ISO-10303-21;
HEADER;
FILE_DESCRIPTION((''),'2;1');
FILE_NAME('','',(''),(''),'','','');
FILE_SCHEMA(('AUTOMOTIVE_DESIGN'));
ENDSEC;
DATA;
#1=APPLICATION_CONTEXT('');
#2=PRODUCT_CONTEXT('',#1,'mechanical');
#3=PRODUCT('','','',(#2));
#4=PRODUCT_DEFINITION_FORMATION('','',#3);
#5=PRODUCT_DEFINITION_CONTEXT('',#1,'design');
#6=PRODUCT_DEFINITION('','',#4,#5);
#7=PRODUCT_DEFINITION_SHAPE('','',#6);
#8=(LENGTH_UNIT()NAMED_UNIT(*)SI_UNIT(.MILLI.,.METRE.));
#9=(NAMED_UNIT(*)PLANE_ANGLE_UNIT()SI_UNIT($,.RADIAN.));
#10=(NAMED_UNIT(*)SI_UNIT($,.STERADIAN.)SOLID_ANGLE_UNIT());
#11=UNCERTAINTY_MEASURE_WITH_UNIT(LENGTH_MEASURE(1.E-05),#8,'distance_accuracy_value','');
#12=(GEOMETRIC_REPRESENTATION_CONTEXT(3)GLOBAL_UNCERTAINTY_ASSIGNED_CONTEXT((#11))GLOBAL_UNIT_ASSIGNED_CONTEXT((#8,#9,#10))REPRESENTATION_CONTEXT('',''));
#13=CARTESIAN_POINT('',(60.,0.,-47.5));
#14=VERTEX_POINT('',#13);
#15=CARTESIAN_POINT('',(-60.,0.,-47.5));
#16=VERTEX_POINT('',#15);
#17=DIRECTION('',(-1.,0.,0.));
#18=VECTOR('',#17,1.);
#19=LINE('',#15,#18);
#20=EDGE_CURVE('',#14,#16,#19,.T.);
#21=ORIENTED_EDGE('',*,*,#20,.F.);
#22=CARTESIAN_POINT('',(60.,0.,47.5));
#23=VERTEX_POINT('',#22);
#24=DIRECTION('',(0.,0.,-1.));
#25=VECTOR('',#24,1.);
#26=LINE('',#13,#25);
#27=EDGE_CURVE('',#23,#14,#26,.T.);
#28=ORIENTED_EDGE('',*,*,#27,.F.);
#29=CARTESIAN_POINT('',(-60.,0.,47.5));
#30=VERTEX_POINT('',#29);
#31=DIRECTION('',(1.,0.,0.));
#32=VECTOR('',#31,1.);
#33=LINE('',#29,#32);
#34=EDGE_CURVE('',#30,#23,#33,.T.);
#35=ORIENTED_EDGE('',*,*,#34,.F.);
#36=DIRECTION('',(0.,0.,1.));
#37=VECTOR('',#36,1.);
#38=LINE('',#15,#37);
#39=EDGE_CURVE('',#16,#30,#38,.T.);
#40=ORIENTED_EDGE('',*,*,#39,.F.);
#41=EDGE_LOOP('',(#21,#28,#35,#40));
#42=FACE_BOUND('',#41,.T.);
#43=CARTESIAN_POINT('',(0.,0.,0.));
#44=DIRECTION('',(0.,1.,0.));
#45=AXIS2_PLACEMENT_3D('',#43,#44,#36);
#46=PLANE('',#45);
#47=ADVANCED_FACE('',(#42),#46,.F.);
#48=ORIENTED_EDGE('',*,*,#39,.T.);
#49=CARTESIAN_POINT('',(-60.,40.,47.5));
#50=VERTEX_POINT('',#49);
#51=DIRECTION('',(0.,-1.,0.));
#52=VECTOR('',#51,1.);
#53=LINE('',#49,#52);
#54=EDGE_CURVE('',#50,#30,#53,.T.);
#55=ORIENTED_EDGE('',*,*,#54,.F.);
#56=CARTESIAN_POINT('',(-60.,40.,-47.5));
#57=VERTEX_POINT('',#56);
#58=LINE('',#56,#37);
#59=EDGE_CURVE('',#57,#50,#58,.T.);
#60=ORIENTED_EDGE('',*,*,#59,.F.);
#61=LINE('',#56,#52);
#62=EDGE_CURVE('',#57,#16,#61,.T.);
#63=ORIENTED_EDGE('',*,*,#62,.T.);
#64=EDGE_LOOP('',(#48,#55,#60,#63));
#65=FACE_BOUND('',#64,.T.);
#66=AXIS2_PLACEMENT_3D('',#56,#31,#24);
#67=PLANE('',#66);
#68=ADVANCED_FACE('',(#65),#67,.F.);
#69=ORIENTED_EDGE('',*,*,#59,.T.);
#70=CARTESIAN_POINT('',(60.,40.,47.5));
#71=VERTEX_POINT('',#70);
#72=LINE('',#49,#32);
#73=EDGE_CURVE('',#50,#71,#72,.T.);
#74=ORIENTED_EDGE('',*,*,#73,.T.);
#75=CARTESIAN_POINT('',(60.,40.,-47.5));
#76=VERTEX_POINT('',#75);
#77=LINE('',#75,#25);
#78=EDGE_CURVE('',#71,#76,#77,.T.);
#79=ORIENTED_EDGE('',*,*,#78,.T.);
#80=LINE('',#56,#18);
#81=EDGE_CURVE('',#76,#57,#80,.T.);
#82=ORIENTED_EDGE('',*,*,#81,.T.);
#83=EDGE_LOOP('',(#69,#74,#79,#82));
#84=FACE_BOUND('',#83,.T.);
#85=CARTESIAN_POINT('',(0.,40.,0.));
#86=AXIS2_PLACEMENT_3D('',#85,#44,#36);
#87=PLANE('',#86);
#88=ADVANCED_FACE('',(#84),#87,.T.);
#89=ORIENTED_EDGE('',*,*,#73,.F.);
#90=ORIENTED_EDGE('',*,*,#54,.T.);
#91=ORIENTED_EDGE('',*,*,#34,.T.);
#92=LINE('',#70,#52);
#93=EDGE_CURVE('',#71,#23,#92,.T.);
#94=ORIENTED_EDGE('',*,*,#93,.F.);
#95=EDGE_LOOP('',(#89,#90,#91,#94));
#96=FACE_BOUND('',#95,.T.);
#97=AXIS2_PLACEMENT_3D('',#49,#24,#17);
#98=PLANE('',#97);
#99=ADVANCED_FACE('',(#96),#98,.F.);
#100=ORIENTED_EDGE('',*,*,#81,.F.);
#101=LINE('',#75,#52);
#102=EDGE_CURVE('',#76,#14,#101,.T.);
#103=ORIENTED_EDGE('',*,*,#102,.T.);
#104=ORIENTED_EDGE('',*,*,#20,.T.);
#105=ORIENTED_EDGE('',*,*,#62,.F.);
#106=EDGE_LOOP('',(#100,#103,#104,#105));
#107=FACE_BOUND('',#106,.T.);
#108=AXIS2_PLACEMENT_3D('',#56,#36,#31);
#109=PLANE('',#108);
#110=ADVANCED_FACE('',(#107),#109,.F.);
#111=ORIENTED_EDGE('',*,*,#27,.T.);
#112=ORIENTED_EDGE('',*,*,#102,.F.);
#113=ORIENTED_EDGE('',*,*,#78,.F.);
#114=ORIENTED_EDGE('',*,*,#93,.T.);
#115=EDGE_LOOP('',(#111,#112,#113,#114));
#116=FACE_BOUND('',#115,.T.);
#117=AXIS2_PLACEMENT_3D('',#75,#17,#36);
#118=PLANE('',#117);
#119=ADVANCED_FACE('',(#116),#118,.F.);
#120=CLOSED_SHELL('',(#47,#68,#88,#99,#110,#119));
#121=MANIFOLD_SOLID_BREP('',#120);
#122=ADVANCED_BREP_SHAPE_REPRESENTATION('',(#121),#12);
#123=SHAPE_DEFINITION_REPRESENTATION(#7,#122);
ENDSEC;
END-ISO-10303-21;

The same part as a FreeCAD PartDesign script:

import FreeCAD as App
import Part
import Sketcher
from FreeCAD import Vector


def add_polygon(sketch, points):
    """Adds a closed chain of lines whose ends are joined by coincident constraints."""
    first, n = sketch.GeometryCount, len(points)
    for a, b in zip(points, points[1:] + points[:1]):
        sketch.addGeometry(Part.LineSegment(App.Vector(*a, 0), App.Vector(*b, 0)), False)
    for i in range(n):
        sketch.addConstraint(Sketcher.Constraint("Coincident", first + i, 2, first + (i + 1) % n, 1))

doc = App.newDocument("Part")
body = doc.addObject("PartDesign::Body", "Body")

# Sketch on XZ plane
sketch1 = body.newObject("Sketcher::SketchObject", "Sketch")
sketch1.AttachmentSupport = (doc.getObject("XZ_Plane"), [""])
sketch1.MapMode = "FlatFace"
add_polygon(sketch1, [(-60, -48), (-60, 48), (60, 48), (60, -48)])  # lines 0-3
sketch1.addConstraint([
    Sketcher.Constraint("Vertical", 0),
    Sketcher.Constraint("Horizontal", 1),
    Sketcher.Constraint("Vertical", 2),
    Sketcher.Constraint("Horizontal", 3),
    Sketcher.Constraint("Symmetric", 0, 2, 2, 2, -1, 1),
    Sketcher.Constraint("DistanceX", 1, 1, 1, 2, 120.0),
    Sketcher.Constraint("DistanceY", 0, 1, 0, 2, 95.0),
])
pad1 = body.newObject("PartDesign::Pad", "Pad")
pad1.Profile = sketch1
pad1.Length = 40
pad1.Reversed = True

doc.recompute()
